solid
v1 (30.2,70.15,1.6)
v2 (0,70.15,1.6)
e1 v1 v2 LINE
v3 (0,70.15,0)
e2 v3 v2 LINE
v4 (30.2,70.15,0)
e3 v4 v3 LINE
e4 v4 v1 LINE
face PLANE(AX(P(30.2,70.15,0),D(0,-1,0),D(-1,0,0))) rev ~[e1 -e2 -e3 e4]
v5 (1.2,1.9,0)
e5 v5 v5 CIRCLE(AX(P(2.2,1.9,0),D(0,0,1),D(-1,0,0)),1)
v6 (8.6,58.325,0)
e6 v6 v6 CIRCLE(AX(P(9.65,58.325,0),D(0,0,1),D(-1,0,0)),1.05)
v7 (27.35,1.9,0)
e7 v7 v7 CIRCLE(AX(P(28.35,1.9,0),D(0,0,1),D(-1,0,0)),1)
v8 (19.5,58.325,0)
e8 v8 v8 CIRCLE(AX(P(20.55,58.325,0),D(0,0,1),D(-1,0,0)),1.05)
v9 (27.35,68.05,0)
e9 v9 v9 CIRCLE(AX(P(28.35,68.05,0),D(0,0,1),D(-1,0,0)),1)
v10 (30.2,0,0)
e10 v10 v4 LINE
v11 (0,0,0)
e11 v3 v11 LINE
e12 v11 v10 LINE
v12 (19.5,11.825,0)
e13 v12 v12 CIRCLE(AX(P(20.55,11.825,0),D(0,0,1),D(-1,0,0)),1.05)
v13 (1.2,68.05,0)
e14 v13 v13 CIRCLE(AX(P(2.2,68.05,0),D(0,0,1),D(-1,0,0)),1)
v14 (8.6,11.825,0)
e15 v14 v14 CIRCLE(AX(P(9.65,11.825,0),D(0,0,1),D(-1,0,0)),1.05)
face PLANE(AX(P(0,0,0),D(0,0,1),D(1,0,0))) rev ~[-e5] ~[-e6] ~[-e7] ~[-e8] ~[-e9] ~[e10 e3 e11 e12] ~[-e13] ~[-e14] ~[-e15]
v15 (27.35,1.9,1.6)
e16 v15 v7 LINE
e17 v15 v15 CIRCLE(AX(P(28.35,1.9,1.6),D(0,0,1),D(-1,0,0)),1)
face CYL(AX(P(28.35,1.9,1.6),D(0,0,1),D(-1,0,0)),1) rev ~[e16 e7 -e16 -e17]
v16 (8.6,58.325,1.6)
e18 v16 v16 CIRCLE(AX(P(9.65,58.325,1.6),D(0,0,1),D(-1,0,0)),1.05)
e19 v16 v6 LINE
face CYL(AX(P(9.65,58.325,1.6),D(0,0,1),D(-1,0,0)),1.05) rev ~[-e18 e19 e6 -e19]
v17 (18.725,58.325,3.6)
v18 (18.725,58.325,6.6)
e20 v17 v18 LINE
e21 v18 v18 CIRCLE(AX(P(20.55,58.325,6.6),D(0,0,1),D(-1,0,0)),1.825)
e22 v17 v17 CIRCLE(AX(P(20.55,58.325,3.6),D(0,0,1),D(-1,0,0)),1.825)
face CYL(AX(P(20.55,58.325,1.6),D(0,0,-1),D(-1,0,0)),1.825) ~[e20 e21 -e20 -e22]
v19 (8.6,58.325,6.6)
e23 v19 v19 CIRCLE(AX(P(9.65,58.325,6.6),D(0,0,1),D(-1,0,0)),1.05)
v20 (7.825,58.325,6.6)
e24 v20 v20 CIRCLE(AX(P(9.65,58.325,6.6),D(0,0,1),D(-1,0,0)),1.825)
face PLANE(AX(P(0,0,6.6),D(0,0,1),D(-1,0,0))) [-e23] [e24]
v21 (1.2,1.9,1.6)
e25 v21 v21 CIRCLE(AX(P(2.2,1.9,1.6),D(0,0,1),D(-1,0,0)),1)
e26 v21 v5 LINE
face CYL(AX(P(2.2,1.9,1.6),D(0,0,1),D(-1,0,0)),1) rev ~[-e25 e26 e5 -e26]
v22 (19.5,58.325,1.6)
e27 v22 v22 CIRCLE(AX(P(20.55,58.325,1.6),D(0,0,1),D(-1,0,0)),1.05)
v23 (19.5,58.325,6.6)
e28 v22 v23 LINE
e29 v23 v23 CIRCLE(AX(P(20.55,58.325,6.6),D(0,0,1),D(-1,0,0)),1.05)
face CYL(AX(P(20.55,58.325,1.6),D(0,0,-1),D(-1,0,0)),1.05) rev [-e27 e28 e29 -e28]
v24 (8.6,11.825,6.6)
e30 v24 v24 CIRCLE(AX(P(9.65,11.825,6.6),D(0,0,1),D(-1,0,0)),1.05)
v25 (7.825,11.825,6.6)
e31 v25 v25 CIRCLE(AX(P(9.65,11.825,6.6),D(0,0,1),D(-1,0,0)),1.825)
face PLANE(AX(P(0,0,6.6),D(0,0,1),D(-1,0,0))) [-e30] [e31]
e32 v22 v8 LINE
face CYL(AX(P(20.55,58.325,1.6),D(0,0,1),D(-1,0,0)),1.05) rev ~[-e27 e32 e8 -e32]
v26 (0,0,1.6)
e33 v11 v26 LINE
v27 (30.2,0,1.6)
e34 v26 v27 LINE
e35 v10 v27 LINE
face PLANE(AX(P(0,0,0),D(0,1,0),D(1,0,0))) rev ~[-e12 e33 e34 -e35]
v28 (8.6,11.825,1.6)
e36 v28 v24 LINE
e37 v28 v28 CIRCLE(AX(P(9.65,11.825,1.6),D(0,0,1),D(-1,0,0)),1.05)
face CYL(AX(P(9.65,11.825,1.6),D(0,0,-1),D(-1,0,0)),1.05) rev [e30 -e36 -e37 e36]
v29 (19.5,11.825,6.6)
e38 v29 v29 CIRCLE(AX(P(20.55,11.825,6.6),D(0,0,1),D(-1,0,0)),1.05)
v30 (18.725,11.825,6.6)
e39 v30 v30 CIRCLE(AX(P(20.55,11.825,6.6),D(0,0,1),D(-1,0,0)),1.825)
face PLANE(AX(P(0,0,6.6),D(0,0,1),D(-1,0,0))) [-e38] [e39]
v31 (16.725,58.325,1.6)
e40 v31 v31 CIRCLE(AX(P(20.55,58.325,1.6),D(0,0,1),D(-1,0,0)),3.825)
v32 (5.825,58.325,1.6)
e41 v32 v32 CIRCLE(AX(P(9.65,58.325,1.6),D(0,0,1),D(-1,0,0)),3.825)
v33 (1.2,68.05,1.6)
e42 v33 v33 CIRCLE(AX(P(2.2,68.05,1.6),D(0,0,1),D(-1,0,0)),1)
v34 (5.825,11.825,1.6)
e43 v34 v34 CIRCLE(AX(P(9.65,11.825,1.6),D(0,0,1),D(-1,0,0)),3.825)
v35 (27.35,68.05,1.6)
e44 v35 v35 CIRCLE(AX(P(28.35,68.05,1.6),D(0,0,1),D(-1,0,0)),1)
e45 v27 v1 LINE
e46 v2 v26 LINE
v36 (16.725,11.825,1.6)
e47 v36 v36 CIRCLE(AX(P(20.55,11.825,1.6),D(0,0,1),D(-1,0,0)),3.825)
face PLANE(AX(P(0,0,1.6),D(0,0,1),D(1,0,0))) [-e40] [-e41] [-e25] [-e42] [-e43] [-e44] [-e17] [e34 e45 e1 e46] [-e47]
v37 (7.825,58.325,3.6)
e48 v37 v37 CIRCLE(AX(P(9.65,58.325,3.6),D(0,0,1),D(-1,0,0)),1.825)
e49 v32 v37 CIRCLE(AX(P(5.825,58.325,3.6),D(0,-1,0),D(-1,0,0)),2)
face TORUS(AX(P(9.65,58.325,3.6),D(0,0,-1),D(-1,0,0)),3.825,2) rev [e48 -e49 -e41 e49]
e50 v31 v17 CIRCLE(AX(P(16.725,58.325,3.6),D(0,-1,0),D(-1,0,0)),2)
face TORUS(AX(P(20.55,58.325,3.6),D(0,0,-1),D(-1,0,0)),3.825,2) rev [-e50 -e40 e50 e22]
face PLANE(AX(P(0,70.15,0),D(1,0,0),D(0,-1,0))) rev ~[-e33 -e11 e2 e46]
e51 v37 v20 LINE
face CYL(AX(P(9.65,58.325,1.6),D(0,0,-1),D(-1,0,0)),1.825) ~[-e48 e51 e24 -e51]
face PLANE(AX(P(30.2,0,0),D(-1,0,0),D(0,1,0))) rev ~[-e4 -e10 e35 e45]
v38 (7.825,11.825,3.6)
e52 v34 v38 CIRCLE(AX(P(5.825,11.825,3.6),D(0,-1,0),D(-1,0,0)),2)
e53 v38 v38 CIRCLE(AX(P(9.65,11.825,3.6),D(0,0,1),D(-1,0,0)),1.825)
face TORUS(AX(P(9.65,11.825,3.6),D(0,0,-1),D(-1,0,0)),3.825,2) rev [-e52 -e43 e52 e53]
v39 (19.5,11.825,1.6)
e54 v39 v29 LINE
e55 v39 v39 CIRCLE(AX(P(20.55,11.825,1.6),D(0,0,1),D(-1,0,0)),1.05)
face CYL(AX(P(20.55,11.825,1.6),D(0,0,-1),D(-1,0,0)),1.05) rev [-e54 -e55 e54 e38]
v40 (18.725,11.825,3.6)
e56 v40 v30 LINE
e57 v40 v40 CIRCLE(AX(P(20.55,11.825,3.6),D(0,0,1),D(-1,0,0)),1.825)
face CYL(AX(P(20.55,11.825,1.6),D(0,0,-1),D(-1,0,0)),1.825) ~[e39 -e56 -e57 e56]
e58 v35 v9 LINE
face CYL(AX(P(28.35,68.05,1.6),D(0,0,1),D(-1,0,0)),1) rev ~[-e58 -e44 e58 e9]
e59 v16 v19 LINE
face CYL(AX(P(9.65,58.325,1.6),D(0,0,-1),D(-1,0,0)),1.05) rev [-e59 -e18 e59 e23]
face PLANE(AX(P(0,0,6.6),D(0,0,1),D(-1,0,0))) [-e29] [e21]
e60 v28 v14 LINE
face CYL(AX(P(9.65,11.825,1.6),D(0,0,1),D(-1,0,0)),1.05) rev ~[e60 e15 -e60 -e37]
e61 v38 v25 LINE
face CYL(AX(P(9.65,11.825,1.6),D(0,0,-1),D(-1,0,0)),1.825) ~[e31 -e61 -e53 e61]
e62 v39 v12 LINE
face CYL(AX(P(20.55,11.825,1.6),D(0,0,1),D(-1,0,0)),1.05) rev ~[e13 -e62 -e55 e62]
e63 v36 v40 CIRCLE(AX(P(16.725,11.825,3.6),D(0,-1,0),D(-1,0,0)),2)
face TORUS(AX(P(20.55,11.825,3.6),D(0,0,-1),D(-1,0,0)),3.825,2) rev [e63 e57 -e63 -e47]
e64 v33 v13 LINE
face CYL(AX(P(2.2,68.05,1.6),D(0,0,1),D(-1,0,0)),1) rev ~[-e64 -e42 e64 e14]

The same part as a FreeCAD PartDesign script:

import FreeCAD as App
import Part
import Sketcher


def edges_at(feature, points):
    """Names of the edges that pass closest to the given points."""
    edges = feature.Shape.Edges
    near = lambda p: min(range(len(edges)), key=lambda i: edges[i].distToShape(Part.Vertex(*p))[0])
    return sorted({f"Edge{near(p) + 1}" for p in points})


def add_polygon(sketch, points):
    """Adds a closed chain of lines whose ends are joined by coincident constraints."""
    first, n = sketch.GeometryCount, len(points)
    for a, b in zip(points, points[1:] + points[:1]):
        sketch.addGeometry(Part.LineSegment(App.Vector(*a, 0), App.Vector(*b, 0)), False)
    for i in range(n):
        sketch.addConstraint(Sketcher.Constraint("Coincident", first + i, 2, first + (i + 1) % n, 1))

doc = App.newDocument("Part")
body = doc.addObject("PartDesign::Body", "Body")

sketch1 = doc.addObject("Sketcher::SketchObject", "Sketch")
body.addObject(sketch1)
sketch1.AttachmentSupport = (doc.XY_Plane, [""])
sketch1.MapMode = "FlatFace"
add_polygon(sketch1, [(0, 70), (0, 0), (30, 0), (30, 70)])
sketch1.addConstraint([
    Sketcher.Constraint("Vertical", 0),
    Sketcher.Constraint("Horizontal", 1),
    Sketcher.Constraint("Vertical", 2),
    Sketcher.Constraint("Horizontal", 3),
    Sketcher.Constraint("Coincident", 0, 2, -1, 1),
    Sketcher.Constraint("DistanceX", 1, 1, 1, 2, 30.2),
    Sketcher.Constraint("DistanceY", 0, 2, 0, 1, 70.15),
])
pad1 = doc.addObject("PartDesign::Pad", "Pad")
body.addObject(pad1)
pad1.Profile = sketch1
pad1.Length = 1.6

sketch2 = doc.addObject("Sketcher::SketchObject", "Sketch001")
body.addObject(sketch2)
sketch2.AttachmentSupport = (doc.XY_Plane, [""])
sketch2.MapMode = "FlatFace"
sketch2.AttachmentOffset = App.Placement(App.Vector(0, 0, 1.6), App.Rotation())
sketch2.addGeometry([
    Part.Circle(App.Vector(2.2, 68, 0), App.Vector(0, 0, 1), 1),
    Part.Circle(App.Vector(28.4, 68, 0), App.Vector(0, 0, 1), 1),
    Part.Circle(App.Vector(2.2, 1.9, 0), App.Vector(0, 0, 1), 1),
    Part.Circle(App.Vector(28.4, 1.9, 0), App.Vector(0, 0, 1), 1),
], False)
sketch2.addConstraint([
    Sketcher.Constraint("Equal", 0, 1),
    Sketcher.Constraint("Equal", 1, 2),
    Sketcher.Constraint("Equal", 2, 3),
    Sketcher.Constraint("Horizontal", 0, 3, 1, 3),
    Sketcher.Constraint("Horizontal", 2, 3, 3, 3),
    Sketcher.Constraint("Vertical", 0, 3, 2, 3),
    Sketcher.Constraint("Vertical", 1, 3, 3, 3),
    Sketcher.Constraint("Diameter", 0, 2.0),
    Sketcher.Constraint("DistanceX", -1, 1, 0, 3, 2.2),
    Sketcher.Constraint("DistanceX", 0, 3, 1, 3, 26.15),
    Sketcher.Constraint("DistanceY", 2, 3, 0, 3, 66.15),
    Sketcher.Constraint("DistanceY", -1, 1, 2, 3, 1.9),
])
pocket1 = doc.addObject("PartDesign::Pocket", "Pocket")
body.addObject(pocket1)
pocket1.Profile = sketch2
pocket1.Length = 1.6

sketch3 = doc.addObject("Sketcher::SketchObject", "Sketch002")
body.addObject(sketch3)
sketch3.AttachmentSupport = (doc.XY_Plane, [""])
sketch3.MapMode = "FlatFace"
sketch3.AttachmentOffset = App.Placement(App.Vector(0, 0, 1.6), App.Rotation())
sketch3.addGeometry([
    Part.Circle(App.Vector(9.7, 58.3, 0), App.Vector(0, 0, 1), 1.1),
    Part.Circle(App.Vector(20.6, 58.3, 0), App.Vector(0, 0, 1), 1.1),
    Part.Circle(App.Vector(9.7, 11.8, 0), App.Vector(0, 0, 1), 1.1),
    Part.Circle(App.Vector(20.6, 11.8, 0), App.Vector(0, 0, 1), 1.1),
], False)
sketch3.addConstraint([
    Sketcher.Constraint("Equal", 0, 1),
    Sketcher.Constraint("Equal", 1, 2),
    Sketcher.Constraint("Equal", 2, 3),
    Sketcher.Constraint("Horizontal", 0, 3, 1, 3),
    Sketcher.Constraint("Horizontal", 2, 3, 3, 3),
    Sketcher.Constraint("Vertical", 0, 3, 2, 3),
    Sketcher.Constraint("Vertical", 1, 3, 3, 3),
    Sketcher.Constraint("Diameter", 0, 2.1),
    Sketcher.Constraint("DistanceX", 0, 3, 1, 3, 10.9),
    Sketcher.Constraint("DistanceY", 2, 3, 0, 3, 46.5),
    Sketcher.Constraint("DistanceX", -1, 1, 0, 3, 9.65),
    Sketcher.Constraint("DistanceY", -1, 1, 0, 3, 58.325),
])
pocket2 = doc.addObject("PartDesign::Pocket", "Pocket001")
body.addObject(pocket2)
pocket2.Profile = sketch3
pocket2.Length = 1.6

sketch4 = doc.addObject("Sketcher::SketchObject", "Sketch003")
body.addObject(sketch4)
sketch4.AttachmentSupport = (doc.XY_Plane, [""])
sketch4.MapMode = "FlatFace"
sketch4.AttachmentOffset = App.Placement(App.Vector(0, 0, 1.6), App.Rotation())
sketch4.addGeometry([
    Part.Circle(App.Vector(9.7, 58.3, 0), App.Vector(0, 0, 1), 1.8),
    Part.Circle(App.Vector(9.7, 58.3, 0), App.Vector(0, 0, 1), 1.1),
    Part.Circle(App.Vector(20.6, 58.3, 0), App.Vector(0, 0, 1), 1.8),
    Part.Circle(App.Vector(20.6, 58.3, 0), App.Vector(0, 0, 1), 1.1),
    Part.Circle(App.Vector(9.7, 11.8, 0), App.Vector(0, 0, 1), 1.8),
    Part.Circle(App.Vector(9.7, 11.8, 0), App.Vector(0, 0, 1), 1.1),
    Part.Circle(App.Vector(20.6, 11.8, 0), App.Vector(0, 0, 1), 1.8),
    Part.Circle(App.Vector(20.6, 11.8, 0), App.Vector(0, 0, 1), 1.1),
], False)
sketch4.addConstraint([
    Sketcher.Constraint("Coincident", 1, 3, 0, 3),
    Sketcher.Constraint("Coincident", 3, 3, 2, 3),
    Sketcher.Constraint("Coincident", 5, 3, 4, 3),
    Sketcher.Constraint("Coincident", 7, 3, 6, 3),
    Sketcher.Constraint("Equal", 0, 2),
    Sketcher.Constraint("Equal", 1, 3),
    Sketcher.Constraint("Equal", 2, 4),
    Sketcher.Constraint("Equal", 3, 5),
    Sketcher.Constraint("Equal", 4, 6),
    Sketcher.Constraint("Equal", 5, 7),
    Sketcher.Constraint("Horizontal", 1, 3, 2, 3),
    Sketcher.Constraint("Horizontal", 5, 3, 6, 3),
    Sketcher.Constraint("Vertical", 1, 3, 4, 3),
    Sketcher.Constraint("Vertical", 3, 3, 6, 3),
    Sketcher.Constraint("Diameter", 1, 2.1),
    Sketcher.Constraint("Diameter", 0, 3.65),
    Sketcher.Constraint("DistanceX", 0, 3, 2, 3, 10.9),
    Sketcher.Constraint("DistanceY", 4, 3, 0, 3, 46.5),
    Sketcher.Constraint("DistanceX", -1, 1, 0, 3, 9.65),
    Sketcher.Constraint("DistanceY", -1, 1, 0, 3, 58.325),
])
pad2 = doc.addObject("PartDesign::Pad", "Pad001")
body.addObject(pad2)
pad2.Profile = sketch4
pad2.Length = 5
doc.recompute()

fillet = doc.addObject("PartDesign::Fillet", "Fillet")
body.addObject(fillet)
fillet.Base = (pad2, edges_at(pad2, [
    (22.252, 57.665, 1.6),
    (11.351, 57.665, 1.6),
    (22.252, 11.165, 1.6),
    (11.351, 11.165, 1.6),
]))
fillet.Radius = 2

doc.recompute()
